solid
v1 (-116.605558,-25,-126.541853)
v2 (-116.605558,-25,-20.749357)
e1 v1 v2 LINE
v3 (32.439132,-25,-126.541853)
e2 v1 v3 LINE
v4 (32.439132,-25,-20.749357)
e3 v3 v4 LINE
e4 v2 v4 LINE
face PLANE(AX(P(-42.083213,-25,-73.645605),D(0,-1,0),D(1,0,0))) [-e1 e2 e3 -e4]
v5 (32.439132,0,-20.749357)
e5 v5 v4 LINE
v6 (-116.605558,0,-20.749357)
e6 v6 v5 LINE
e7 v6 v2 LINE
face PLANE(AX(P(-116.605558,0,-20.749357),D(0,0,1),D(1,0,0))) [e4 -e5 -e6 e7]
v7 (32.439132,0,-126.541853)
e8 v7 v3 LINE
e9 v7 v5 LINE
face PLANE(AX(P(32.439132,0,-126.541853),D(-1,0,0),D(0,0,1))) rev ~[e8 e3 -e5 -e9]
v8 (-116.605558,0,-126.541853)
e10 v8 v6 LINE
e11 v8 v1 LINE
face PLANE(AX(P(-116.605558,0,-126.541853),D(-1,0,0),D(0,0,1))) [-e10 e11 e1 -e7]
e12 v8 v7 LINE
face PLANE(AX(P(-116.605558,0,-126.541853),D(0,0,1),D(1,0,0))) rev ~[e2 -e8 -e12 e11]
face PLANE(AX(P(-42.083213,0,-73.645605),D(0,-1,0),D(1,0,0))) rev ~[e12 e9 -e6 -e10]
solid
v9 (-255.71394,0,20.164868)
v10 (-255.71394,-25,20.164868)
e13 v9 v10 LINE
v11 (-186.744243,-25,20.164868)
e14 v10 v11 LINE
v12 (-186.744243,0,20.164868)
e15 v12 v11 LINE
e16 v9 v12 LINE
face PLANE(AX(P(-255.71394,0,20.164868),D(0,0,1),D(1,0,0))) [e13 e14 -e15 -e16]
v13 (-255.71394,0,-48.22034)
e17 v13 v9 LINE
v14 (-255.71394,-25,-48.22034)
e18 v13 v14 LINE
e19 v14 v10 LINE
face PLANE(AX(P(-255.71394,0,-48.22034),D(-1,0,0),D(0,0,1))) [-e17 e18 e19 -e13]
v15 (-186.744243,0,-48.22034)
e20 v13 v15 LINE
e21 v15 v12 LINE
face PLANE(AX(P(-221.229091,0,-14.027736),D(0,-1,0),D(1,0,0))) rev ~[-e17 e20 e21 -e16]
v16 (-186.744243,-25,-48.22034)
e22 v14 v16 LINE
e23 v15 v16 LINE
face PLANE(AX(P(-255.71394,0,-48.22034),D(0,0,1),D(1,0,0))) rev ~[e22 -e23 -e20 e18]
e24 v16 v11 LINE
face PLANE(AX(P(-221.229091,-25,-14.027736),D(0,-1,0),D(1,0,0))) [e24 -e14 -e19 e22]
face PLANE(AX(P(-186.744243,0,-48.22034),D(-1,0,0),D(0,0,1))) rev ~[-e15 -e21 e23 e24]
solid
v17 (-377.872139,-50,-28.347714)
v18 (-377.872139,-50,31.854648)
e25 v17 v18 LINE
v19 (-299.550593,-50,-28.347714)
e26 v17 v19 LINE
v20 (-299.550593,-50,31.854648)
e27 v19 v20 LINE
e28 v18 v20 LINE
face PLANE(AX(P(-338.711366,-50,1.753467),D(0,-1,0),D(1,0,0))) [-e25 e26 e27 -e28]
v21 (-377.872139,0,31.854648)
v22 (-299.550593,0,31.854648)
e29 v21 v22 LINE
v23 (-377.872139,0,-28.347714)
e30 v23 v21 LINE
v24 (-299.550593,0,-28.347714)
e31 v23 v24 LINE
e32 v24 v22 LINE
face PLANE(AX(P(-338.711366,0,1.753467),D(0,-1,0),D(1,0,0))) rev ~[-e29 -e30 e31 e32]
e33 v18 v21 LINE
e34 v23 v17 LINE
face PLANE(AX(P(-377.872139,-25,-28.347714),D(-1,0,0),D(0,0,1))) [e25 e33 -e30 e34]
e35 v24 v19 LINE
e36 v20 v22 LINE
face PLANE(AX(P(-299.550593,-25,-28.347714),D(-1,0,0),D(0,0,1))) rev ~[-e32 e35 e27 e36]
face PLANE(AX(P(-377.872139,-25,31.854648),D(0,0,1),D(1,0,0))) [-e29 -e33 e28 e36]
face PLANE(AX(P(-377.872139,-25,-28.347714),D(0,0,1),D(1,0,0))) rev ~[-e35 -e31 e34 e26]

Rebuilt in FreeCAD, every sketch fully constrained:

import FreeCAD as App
import Part
import Sketcher

V = App.Vector


def add_polygon(sketch, points):
    """Adds a closed chain of lines whose ends are joined by coincident constraints."""
    first, n = sketch.GeometryCount, len(points)
    for a, b in zip(points, points[1:] + points[:1]):
        sketch.addGeometry(Part.LineSegment(App.Vector(*a, 0), App.Vector(*b, 0)), False)
    for i in range(n):
        sketch.addConstraint(Sketcher.Constraint("Coincident", first + i, 2, first + (i + 1) % n, 1))

doc = App.newDocument("Part")
body = doc.addObject("PartDesign::Body", "Body")
body.AllowCompound = True

# Sketch on XZ plane
sketch1 = body.newObject("Sketcher::SketchObject", "Sketch")
sketch1.AttachmentSupport = (doc.getObject("XZ_Plane"), [""])
sketch1.MapMode = "FlatFace"
add_polygon(sketch1, [(-378, 32), (-378, -28), (-300, -28), (-300, 32)])  # lines 0-3
add_polygon(sketch1, [(-256, 20), (-256, -48), (-187, -48), (-187, 20)])  # lines 4-7
add_polygon(sketch1, [(-117, -21), (-117, -127), (32, -127), (32, -21)])  # lines 8-11
sketch1.addConstraint([
    Sketcher.Constraint("Vertical", 0),
    Sketcher.Constraint("Horizontal", 1),
    Sketcher.Constraint("Vertical", 2),
    Sketcher.Constraint("Horizontal", 3),
    Sketcher.Constraint("Vertical", 4),
    Sketcher.Constraint("Horizontal", 5),
    Sketcher.Constraint("Vertical", 6),
    Sketcher.Constraint("Horizontal", 7),
    Sketcher.Constraint("Vertical", 8),
    Sketcher.Constraint("Horizontal", 9),
    Sketcher.Constraint("Vertical", 10),
    Sketcher.Constraint("Horizontal", 11),
    Sketcher.Constraint("DistanceX", 9, 1, 9, 2, 149.044689),
    Sketcher.Constraint("DistanceY", 4, 2, 4, 1, 68.385208),
    Sketcher.Constraint("DistanceX", 0, 2, 4, 2, 122.158199),
    Sketcher.Constraint("DistanceX", 1, 1, 1, 2, 78.321546),
    Sketcher.Constraint("DistanceX", 5, 1, 5, 2, 68.969697),
    Sketcher.Constraint("DistanceY", 0, 2, 0, 1, 60.202362),
    Sketcher.Constraint("DistanceY", 8, 2, 8, 1, 105.792495),
    Sketcher.Constraint("DistanceX", 0, 2, -1, 1, 377.872139),
    Sketcher.Constraint("DistanceY", -1, 1, 2, 2, 31.854648),
    Sketcher.Constraint("DistanceY", 4, 2, -1, 1, 48.22034),
    Sketcher.Constraint("DistanceX", -1, 1, 9, 2, 32.439132),
    Sketcher.Constraint("DistanceY", 8, 2, 6, 2, 146.706721),
])
pad1 = body.newObject("PartDesign::Pad", "Pad")
pad1.Profile = sketch1
pad1.Length = 25

# Sketch on XZ plane
sketch2 = body.newObject("Sketcher::SketchObject", "Sketch001")
sketch2.AttachmentSupport = (doc.getObject("XZ_Plane"), [""])
sketch2.MapMode = "FlatFace"
sketch2.AttachmentOffset = App.Placement(V(0, 0, 25), App.Rotation())
add_polygon(sketch2, [(-378, 32), (-378, -28), (-300, -28), (-300, 32)])  # lines 0-3
sketch2.addConstraint([
    Sketcher.Constraint("Vertical", 0),
    Sketcher.Constraint("Horizontal", 1),
    Sketcher.Constraint("Vertical", 2),
    Sketcher.Constraint("Horizontal", 3),
    Sketcher.Constraint("DistanceX", 1, 1, 1, 2, 78.321546),
    Sketcher.Constraint("DistanceY", 0, 2, 0, 1, 60.202362),
    Sketcher.Constraint("DistanceX", 0, 2, -1, 1, 377.872139),
    Sketcher.Constraint("DistanceY", -1, 1, 2, 2, 31.854648),
])
pad2 = body.newObject("PartDesign::Pad", "Pad001")
pad2.Profile = sketch2
pad2.Length = 25

doc.recompute()
